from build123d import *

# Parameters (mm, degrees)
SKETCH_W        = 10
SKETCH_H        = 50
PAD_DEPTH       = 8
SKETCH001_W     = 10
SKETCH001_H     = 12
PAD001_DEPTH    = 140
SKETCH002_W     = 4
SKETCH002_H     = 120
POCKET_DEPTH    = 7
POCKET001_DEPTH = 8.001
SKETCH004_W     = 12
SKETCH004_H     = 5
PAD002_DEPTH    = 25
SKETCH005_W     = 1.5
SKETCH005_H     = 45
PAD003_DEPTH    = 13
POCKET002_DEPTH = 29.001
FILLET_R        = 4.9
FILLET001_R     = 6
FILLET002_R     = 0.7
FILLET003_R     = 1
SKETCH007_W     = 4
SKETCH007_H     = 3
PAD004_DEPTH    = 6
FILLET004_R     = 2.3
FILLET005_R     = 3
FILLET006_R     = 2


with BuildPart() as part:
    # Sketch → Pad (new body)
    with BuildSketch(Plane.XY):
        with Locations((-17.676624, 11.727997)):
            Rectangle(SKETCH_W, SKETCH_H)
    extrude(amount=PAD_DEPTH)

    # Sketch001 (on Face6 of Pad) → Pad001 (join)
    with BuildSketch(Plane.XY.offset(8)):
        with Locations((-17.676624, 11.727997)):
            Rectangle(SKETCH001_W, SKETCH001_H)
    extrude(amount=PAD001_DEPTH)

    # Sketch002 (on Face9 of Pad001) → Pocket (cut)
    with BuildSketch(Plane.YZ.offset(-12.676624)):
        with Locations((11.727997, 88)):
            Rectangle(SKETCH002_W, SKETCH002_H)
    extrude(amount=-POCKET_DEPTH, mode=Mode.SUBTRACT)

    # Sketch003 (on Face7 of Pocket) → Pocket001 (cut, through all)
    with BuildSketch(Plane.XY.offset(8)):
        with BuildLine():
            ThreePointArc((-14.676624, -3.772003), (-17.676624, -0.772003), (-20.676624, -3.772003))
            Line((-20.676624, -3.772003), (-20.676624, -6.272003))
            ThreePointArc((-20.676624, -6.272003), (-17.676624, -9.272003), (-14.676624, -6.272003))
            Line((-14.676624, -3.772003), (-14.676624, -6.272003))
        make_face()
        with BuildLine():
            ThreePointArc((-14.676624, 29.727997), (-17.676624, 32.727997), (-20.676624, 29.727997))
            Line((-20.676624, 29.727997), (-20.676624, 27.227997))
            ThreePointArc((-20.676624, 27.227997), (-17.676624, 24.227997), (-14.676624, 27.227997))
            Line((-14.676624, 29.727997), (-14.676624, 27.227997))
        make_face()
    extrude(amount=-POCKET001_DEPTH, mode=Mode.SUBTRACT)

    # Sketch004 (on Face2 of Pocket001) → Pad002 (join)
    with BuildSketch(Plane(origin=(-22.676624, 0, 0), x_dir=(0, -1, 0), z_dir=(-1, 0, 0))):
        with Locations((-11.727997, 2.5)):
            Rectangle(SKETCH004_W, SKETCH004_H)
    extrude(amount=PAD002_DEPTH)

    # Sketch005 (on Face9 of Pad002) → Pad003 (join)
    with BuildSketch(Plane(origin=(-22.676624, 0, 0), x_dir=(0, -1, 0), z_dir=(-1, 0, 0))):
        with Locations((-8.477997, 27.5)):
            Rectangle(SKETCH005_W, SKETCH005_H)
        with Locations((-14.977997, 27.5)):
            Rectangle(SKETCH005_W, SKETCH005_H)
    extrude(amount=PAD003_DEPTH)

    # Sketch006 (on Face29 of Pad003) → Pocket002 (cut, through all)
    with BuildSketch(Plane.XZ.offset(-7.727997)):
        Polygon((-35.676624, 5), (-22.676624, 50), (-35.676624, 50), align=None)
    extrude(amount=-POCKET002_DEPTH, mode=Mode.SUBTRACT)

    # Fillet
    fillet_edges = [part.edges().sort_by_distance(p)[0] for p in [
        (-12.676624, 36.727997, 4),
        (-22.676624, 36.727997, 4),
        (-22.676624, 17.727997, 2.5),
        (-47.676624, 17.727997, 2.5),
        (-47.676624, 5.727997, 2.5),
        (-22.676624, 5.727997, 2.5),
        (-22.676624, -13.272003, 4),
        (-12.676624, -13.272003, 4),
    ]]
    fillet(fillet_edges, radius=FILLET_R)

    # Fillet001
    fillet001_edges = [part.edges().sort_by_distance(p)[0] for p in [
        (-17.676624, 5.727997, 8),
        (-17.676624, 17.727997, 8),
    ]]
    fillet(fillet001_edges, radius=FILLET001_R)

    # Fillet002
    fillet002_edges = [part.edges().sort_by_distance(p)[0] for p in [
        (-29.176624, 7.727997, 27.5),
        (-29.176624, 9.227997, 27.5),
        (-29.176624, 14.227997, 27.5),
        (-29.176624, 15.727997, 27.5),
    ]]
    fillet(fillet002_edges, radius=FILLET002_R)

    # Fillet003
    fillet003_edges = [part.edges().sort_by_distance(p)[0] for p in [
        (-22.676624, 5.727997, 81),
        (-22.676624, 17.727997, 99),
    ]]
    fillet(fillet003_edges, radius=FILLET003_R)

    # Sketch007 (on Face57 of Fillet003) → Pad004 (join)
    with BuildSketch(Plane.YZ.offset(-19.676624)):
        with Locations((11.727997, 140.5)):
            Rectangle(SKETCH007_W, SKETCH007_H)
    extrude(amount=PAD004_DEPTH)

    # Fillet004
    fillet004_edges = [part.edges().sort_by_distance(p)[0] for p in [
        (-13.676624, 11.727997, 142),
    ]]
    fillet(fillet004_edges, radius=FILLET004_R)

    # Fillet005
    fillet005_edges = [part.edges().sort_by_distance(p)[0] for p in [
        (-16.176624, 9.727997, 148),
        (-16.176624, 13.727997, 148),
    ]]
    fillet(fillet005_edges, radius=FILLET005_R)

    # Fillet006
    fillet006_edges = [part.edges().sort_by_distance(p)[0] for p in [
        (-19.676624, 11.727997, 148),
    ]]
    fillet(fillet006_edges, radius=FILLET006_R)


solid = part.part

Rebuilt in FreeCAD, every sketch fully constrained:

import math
import FreeCAD as App
import Part
import Sketcher

V = App.Vector
Q = App.Units.Quantity


def edges_at(feature, points):
    """Names of the edges that pass closest to the given points."""
    edges = feature.Shape.Edges
    near = lambda p: min(range(len(edges)), key=lambda i: edges[i].distToShape(Part.Vertex(*p))[0])
    return sorted({f"Edge{near(p) + 1}" for p in points})


def add_polygon(sketch, points):
    """Adds a closed chain of lines whose ends are joined by coincident constraints."""
    first, n = sketch.GeometryCount, len(points)
    for a, b in zip(points, points[1:] + points[:1]):
        sketch.addGeometry(Part.LineSegment(App.Vector(*a, 0), App.Vector(*b, 0)), False)
    for i in range(n):
        sketch.addConstraint(Sketcher.Constraint("Coincident", first + i, 2, first + (i + 1) % n, 1))

doc = App.newDocument("Part")
body = doc.addObject("PartDesign::Body", "Body")

sketch1 = body.newObject("Sketcher::SketchObject", "Sketch")
sketch1.AttachmentSupport = (doc.getObject("XY_Plane"), [""])
sketch1.MapMode = "FlatFace"
add_polygon(sketch1, [(-22.676624, 36.727997), (-22.676624, -13.272003), (-12.676624, -13.272003), (-12.676624, 36.727997)])
sketch1.addConstraint([
    Sketcher.Constraint("Vertical", 0),
    Sketcher.Constraint("Horizontal", 1),
    Sketcher.Constraint("Vertical", 2),
    Sketcher.Constraint("Horizontal", 3),
    Sketcher.Constraint("DistanceX", 1, 1, 1, 2, Q("10 mm")),
    Sketcher.Constraint("DistanceY", 0, 2, 0, 1, Q("50 mm")),
    Sketcher.Constraint("DistanceX", 0, 2, -1, 1, Q("22.676624 mm")),
    Sketcher.Constraint("DistanceY", 0, 2, -1, 1, Q("13.272003 mm")),
])
pad1 = body.newObject("PartDesign::Pad", "Pad")
pad1.Profile = sketch1
pad1.Length = 8

sketch2 = body.newObject("Sketcher::SketchObject", "Sketch001")
sketch2.AttachmentSupport = (doc.getObject("XY_Plane"), [""])
sketch2.MapMode = "FlatFace"
sketch2.AttachmentOffset = App.Placement(V(0, 0, 8), App.Rotation())
add_polygon(sketch2, [(-22.676624, 17.727997), (-22.676624, 5.727997), (-12.676624, 5.727997), (-12.676624, 17.727997)])
sketch2.addConstraint([
    Sketcher.Constraint("Vertical", 0),
    Sketcher.Constraint("Horizontal", 1),
    Sketcher.Constraint("Vertical", 2),
    Sketcher.Constraint("Horizontal", 3),
    Sketcher.Constraint("DistanceX", 1, 1, 1, 2, Q("10 mm")),
    Sketcher.Constraint("DistanceY", 0, 2, 0, 1, Q("12 mm")),
    Sketcher.Constraint("DistanceX", 0, 2, -1, 1, Q("22.676624 mm")),
    Sketcher.Constraint("DistanceY", -1, 1, 0, 2, Q("5.727997 mm")),
])
pad2 = body.newObject("PartDesign::Pad", "Pad001")
pad2.Profile = sketch2
pad2.Length = 140

sketch3 = body.newObject("Sketcher::SketchObject", "Sketch002")
sketch3.AttachmentSupport = (doc.getObject("YZ_Plane"), [""])
sketch3.MapMode = "FlatFace"
sketch3.AttachmentOffset = App.Placement(V(0, 0, -12.676624), App.Rotation())
add_polygon(sketch3, [(9.727997, 148), (9.727997, 28), (13.727997, 28), (13.727997, 148)])
sketch3.addConstraint([
    Sketcher.Constraint("Vertical", 0),
    Sketcher.Constraint("Horizontal", 1),
    Sketcher.Constraint("Vertical", 2),
    Sketcher.Constraint("Horizontal", 3),
    Sketcher.Constraint("DistanceX", 1, 1, 1, 2, Q("4 mm")),
    Sketcher.Constraint("DistanceY", 0, 2, 0, 1, Q("120 mm")),
    Sketcher.Constraint("DistanceY", -1, 1, 0, 2, Q("28 mm")),
    Sketcher.Constraint("DistanceX", -1, 1, 0, 2, Q("9.727997 mm")),
])
pocket1 = body.newObject("PartDesign::Pocket", "Pocket")
pocket1.Profile = sketch3
pocket1.Length = 7

sketch4 = body.newObject("Sketcher::SketchObject", "Sketch003")
sketch4.AttachmentSupport = (doc.getObject("XY_Plane"), [""])
sketch4.MapMode = "FlatFace"
sketch4.AttachmentOffset = App.Placement(V(0, 0, 8), App.Rotation())
sketch4.addGeometry([
    Part.ArcOfCircle(Part.Circle(V(-17.676624, -3.772003, 0), V(0, 0, 1), 3), math.radians(0), math.radians(180)),
    Part.LineSegment(V(-20.676624, -3.772003, 0), V(-20.676624, -6.272003, 0)),
    Part.ArcOfCircle(Part.Circle(V(-17.676624, -6.272003, 0), V(0, 0, 1), 3), math.radians(180), math.radians(360)),
    Part.LineSegment(V(-14.676624, -6.272003, 0), V(-14.676624, -3.772003, 0)),
    Part.ArcOfCircle(Part.Circle(V(-17.676624, 29.727997, 0), V(0, 0, 1), 3), math.radians(0), math.radians(180)),
    Part.LineSegment(V(-20.676624, 29.727997, 0), V(-20.676624, 27.227997, 0)),
    Part.ArcOfCircle(Part.Circle(V(-17.676624, 27.227997, 0), V(0, 0, 1), 3), math.radians(180), math.radians(360)),
    Part.LineSegment(V(-14.676624, 27.227997, 0), V(-14.676624, 29.727997, 0)),
], False)
sketch4.addConstraint([
    Sketcher.Constraint("Tangent", 0, 2, 1, 1),
    Sketcher.Constraint("Tangent", 1, 2, 2, 1),
    Sketcher.Constraint("Tangent", 2, 2, 3, 1),
    Sketcher.Constraint("Tangent", 3, 2, 0, 1),
    Sketcher.Constraint("Tangent", 4, 2, 5, 1),
    Sketcher.Constraint("Tangent", 5, 2, 6, 1),
    Sketcher.Constraint("Tangent", 6, 2, 7, 1),
    Sketcher.Constraint("Tangent", 7, 2, 4, 1),
    Sketcher.Constraint("Vertical", 1),
    Sketcher.Constraint("Vertical", 3),
    Sketcher.Constraint("Vertical", 5),
    Sketcher.Constraint("Vertical", 7),
    Sketcher.Constraint("Equal", 2, 4),
    Sketcher.Constraint("Vertical", 2, 3, 4, 3),
    Sketcher.Constraint("Equal", 3, 5),
    Sketcher.Constraint("Radius", 0, Q("3 mm")),
    Sketcher.Constraint("DistanceY", 1, 2, 1, 1, Q("2.5 mm")),
    Sketcher.Constraint("DistanceY", 2, 3, 4, 3, Q("36 mm")),
    Sketcher.Constraint("DistanceX", 0, 3, -1, 1, Q("17.676624 mm")),
    Sketcher.Constraint("DistanceY", 0, 3, -1, 1, Q("3.772003 mm")),
])
pocket2 = body.newObject("PartDesign::Pocket", "Pocket001")
pocket2.Profile = sketch4
pocket2.Type = "ThroughAll"

sketch5 = body.newObject("Sketcher::SketchObject", "Sketch004")
sketch5.AttachmentSupport = (doc.getObject("YZ_Plane"), [""])
sketch5.MapMode = "FlatFace"
sketch5.AttachmentOffset = App.Placement(V(0, 0, -22.676624), App.Rotation())
add_polygon(sketch5, [(17.727997, 5), (17.727997, 0), (5.727997, 0), (5.727997, 5)])
sketch5.addConstraint([
    Sketcher.Constraint("Vertical", 0),
    Sketcher.Constraint("Horizontal", 1),
    Sketcher.Constraint("Vertical", 2),
    Sketcher.Constraint("Horizontal", 3),
    Sketcher.Constraint("PointOnObject", 0, 2, -1),
    Sketcher.Constraint("DistanceX", 1, 2, 1, 1, Q("12 mm")),
    Sketcher.Constraint("DistanceY", 0, 2, 0, 1, Q("5 mm")),
    Sketcher.Constraint("DistanceX", -1, 1, 0, 2, Q("17.727997 mm")),
])
pad3 = body.newObject("PartDesign::Pad", "Pad002")
pad3.Profile = sketch5
pad3.Length = 25
pad3.Reversed = True

sketch6 = body.newObject("Sketcher::SketchObject", "Sketch005")
sketch6.AttachmentSupport = (doc.getObject("YZ_Plane"), [""])
sketch6.MapMode = "FlatFace"
sketch6.AttachmentOffset = App.Placement(V(0, 0, -22.676624), App.Rotation())
add_polygon(sketch6, [(9.227997, 50), (9.227997, 5), (7.727997, 5), (7.727997, 50)])
add_polygon(sketch6, [(15.727997, 50), (15.727997, 5), (14.227997, 5), (14.227997, 50)])
sketch6.addConstraint([
    Sketcher.Constraint("Vertical", 0),
    Sketcher.Constraint("Horizontal", 1),
    Sketcher.Constraint("Vertical", 2),
    Sketcher.Constraint("Horizontal", 3),
    Sketcher.Constraint("Vertical", 4),
    Sketcher.Constraint("Horizontal", 5),
    Sketcher.Constraint("Vertical", 6),
    Sketcher.Constraint("Horizontal", 7),
    Sketcher.Constraint("Horizontal", 1, 2, 4, 2),
    Sketcher.Constraint("Horizontal", 3, 2, 6, 2),
    Sketcher.Constraint("Equal", 3, 5),
    Sketcher.Constraint("DistanceY", 0, 2, 0, 1, Q("45 mm")),
    Sketcher.Constraint("DistanceX", 1, 2, 1, 1, Q("1.5 mm")),
    Sketcher.Constraint("DistanceY", -1, 1, 0, 2, Q("5 mm")),
    Sketcher.Constraint("DistanceX", 1, 2, 4, 2, Q("8 mm")),
    Sketcher.Constraint("DistanceX", -1, 1, 0, 2, Q("9.227997 mm")),
])
pad4 = body.newObject("PartDesign::Pad", "Pad003")
pad4.Profile = sketch6
pad4.Length = 13
pad4.Reversed = True

sketch7 = body.newObject("Sketcher::SketchObject", "Sketch006")
sketch7.AttachmentSupport = (doc.getObject("XZ_Plane"), [""])
sketch7.MapMode = "FlatFace"
sketch7.AttachmentOffset = App.Placement(V(0, 0, -7.727997), App.Rotation())
add_polygon(sketch7, [(-35.676624, 5), (-22.676624, 50), (-35.676624, 50)])
sketch7.addConstraint([
    Sketcher.Constraint("Horizontal", 1),
    Sketcher.Constraint("Vertical", 2),
    Sketcher.Constraint("DistanceX", 1, 2, 1, 1, Q("13 mm")),
    Sketcher.Constraint("DistanceY", 2, 2, 2, 1, Q("45 mm")),
    Sketcher.Constraint("DistanceY", -1, 1, 0, 2, Q("50 mm")),
    Sketcher.Constraint("DistanceX", 0, 2, -1, 1, Q("22.676624 mm")),
])
pocket3 = body.newObject("PartDesign::Pocket", "Pocket002")
pocket3.Profile = sketch7
pocket3.Type = "ThroughAll"
doc.recompute()

fillet = body.newObject("PartDesign::Fillet", "Fillet")
fillet.Base = (pocket3, edges_at(pocket3, [
    (-12.677, 36.728, 4),
    (-22.677, 36.728, 4),
    (-22.677, 17.728, 2.5),
    (-47.677, 17.728, 2.5),
    (-47.677, 5.728, 2.5),
    (-22.677, 5.728, 2.5),
    (-22.677, -13.272, 4),
    (-12.677, -13.272, 4),
]))
fillet.Radius = 4.9
doc.recompute()

fillet2 = body.newObject("PartDesign::Fillet", "Fillet001")
fillet2.Base = (fillet, edges_at(fillet, [(-17.677, 5.728, 8), (-17.677, 17.728, 8)]))
fillet2.Radius = 6
doc.recompute()

fillet3 = body.newObject("PartDesign::Fillet", "Fillet002")
fillet3.Base = (fillet2, edges_at(fillet2, [
    (-29.177, 7.728, 27.5),
    (-29.177, 9.228, 27.5),
    (-29.177, 14.228, 27.5),
    (-29.177, 15.728, 27.5),
]))
fillet3.Radius = 0.7
doc.recompute()

fillet4 = body.newObject("PartDesign::Fillet", "Fillet003")
fillet4.Base = (fillet3, edges_at(fillet3, [(-22.677, 5.728, 81), (-22.677, 17.728, 81)]))
fillet4.Radius = 1

sketch8 = body.newObject("Sketcher::SketchObject", "Sketch007")
sketch8.AttachmentSupport = (doc.getObject("YZ_Plane"), [""])
sketch8.MapMode = "FlatFace"
sketch8.AttachmentOffset = App.Placement(V(0, 0, -19.676624), App.Rotation())
add_polygon(sketch8, [(9.727997, 142), (9.727997, 139), (13.727997, 139), (13.727997, 142)])
sketch8.addConstraint([
    Sketcher.Constraint("Vertical", 0),
    Sketcher.Constraint("Horizontal", 1),
    Sketcher.Constraint("Vertical", 2),
    Sketcher.Constraint("Horizontal", 3),
    Sketcher.Constraint("DistanceX", 1, 1, 1, 2, Q("4 mm")),
    Sketcher.Constraint("DistanceY", 0, 2, 0, 1, Q("3 mm")),
    Sketcher.Constraint("DistanceY", -1, 1, 0, 2, Q("139 mm")),
    Sketcher.Constraint("DistanceX", -1, 1, 0, 2, Q("9.727997 mm")),
])
pad5 = body.newObject("PartDesign::Pad", "Pad004")
pad5.Profile = sketch8
pad5.Length = 6
doc.recompute()

fillet5 = body.newObject("PartDesign::Fillet", "Fillet004")
fillet5.Base = (pad5, edges_at(pad5, [(-13.677, 11.728, 142)]))
fillet5.Radius = 2.3
doc.recompute()

fillet6 = body.newObject("PartDesign::Fillet", "Fillet005")
fillet6.Base = (fillet5, edges_at(fillet5, [(-16.177, 9.728, 148), (-16.177, 13.728, 148)]))
fillet6.Radius = 3
doc.recompute()

fillet7 = body.newObject("PartDesign::Fillet", "Fillet006")
fillet7.Base = (fillet6, edges_at(fillet6, [(-19.677, 11.728, 148)]))
fillet7.Radius = 2

doc.recompute()
